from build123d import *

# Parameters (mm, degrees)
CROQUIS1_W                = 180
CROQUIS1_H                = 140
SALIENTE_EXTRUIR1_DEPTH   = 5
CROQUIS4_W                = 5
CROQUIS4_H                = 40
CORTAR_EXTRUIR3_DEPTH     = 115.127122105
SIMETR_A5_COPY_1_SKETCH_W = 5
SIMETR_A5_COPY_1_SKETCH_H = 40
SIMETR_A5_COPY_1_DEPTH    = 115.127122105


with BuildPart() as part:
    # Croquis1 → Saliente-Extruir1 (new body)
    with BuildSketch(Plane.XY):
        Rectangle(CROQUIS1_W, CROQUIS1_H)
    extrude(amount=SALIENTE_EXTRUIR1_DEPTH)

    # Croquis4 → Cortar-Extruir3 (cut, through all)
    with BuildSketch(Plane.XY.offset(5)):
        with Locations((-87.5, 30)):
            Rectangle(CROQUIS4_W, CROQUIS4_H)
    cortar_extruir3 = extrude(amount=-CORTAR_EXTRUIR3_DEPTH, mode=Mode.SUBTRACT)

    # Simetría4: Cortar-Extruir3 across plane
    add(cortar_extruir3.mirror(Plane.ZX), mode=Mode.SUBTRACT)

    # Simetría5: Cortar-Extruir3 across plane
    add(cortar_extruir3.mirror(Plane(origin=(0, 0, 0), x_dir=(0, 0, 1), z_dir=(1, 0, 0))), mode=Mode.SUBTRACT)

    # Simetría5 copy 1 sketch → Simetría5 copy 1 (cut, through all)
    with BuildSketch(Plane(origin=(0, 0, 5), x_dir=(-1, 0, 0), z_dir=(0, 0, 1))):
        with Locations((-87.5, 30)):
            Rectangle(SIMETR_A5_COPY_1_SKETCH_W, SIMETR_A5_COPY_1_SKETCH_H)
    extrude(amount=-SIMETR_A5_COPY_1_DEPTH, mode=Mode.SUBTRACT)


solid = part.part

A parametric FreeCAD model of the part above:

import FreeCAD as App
import Part
import Sketcher

V = App.Vector

doc = App.newDocument("Part")
body = doc.addObject("PartDesign::Body", "Body")

sketch1 = body.newObject("Sketcher::SketchObject", "Sketch")
sketch1.AttachmentSupport = (doc.getObject("XY_Plane"), [""])
sketch1.MapMode = "FlatFace"
sketch1.addGeometry(Part.LineSegment(V(-90, 70, 0), V(-90, -70, 0)), False)
sketch1.addGeometry(Part.LineSegment(V(-90, -70, 0), V(90, -70, 0)), False)
sketch1.addGeometry(Part.LineSegment(V(90, -70, 0), V(90, 70, 0)), False)
sketch1.addGeometry(Part.LineSegment(V(90, 70, 0), V(-90, 70, 0)), False)
sketch1.addConstraint(Sketcher.Constraint("Coincident", 0, 2, 1, 1))
sketch1.addConstraint(Sketcher.Constraint("Coincident", 1, 2, 2, 1))
sketch1.addConstraint(Sketcher.Constraint("Coincident", 2, 2, 3, 1))
sketch1.addConstraint(Sketcher.Constraint("Coincident", 3, 2, 0, 1))
sketch1.addConstraint(Sketcher.Constraint("Vertical", 0))
sketch1.addConstraint(Sketcher.Constraint("Horizontal", 1))
sketch1.addConstraint(Sketcher.Constraint("Vertical", 2))
sketch1.addConstraint(Sketcher.Constraint("Horizontal", 3))
sketch1.addConstraint(Sketcher.Constraint("Symmetric", 0, 2, 2, 2, -1, 1))
sketch1.addConstraint(Sketcher.Constraint("DistanceX", 1, 1, 1, 2, 180.0))
sketch1.addConstraint(Sketcher.Constraint("DistanceY", 0, 2, 0, 1, 140.0))
pad1 = body.newObject("PartDesign::Pad", "Pad")
pad1.Profile = sketch1
pad1.Length = 5

sketch2 = body.newObject("Sketcher::SketchObject", "Sketch001")
sketch2.AttachmentSupport = (doc.getObject("XY_Plane"), [""])
sketch2.MapMode = "FlatFace"
sketch2.AttachmentOffset = App.Placement(V(0, 0, 5), App.Rotation())
sketch2.addGeometry(Part.LineSegment(V(-90, 50, 0), V(-90, 10, 0)), False)
sketch2.addGeometry(Part.LineSegment(V(-90, 10, 0), V(-85, 10, 0)), False)
sketch2.addGeometry(Part.LineSegment(V(-85, 10, 0), V(-85, 50, 0)), False)
sketch2.addGeometry(Part.LineSegment(V(-85, 50, 0), V(-90, 50, 0)), False)
sketch2.addConstraint(Sketcher.Constraint("Coincident", 0, 2, 1, 1))
sketch2.addConstraint(Sketcher.Constraint("Coincident", 1, 2, 2, 1))
sketch2.addConstraint(Sketcher.Constraint("Coincident", 2, 2, 3, 1))
sketch2.addConstraint(Sketcher.Constraint("Coincident", 3, 2, 0, 1))
sketch2.addConstraint(Sketcher.Constraint("Vertical", 0))
sketch2.addConstraint(Sketcher.Constraint("Horizontal", 1))
sketch2.addConstraint(Sketcher.Constraint("Vertical", 2))
sketch2.addConstraint(Sketcher.Constraint("Horizontal", 3))
sketch2.addConstraint(Sketcher.Constraint("DistanceX", 1, 1, 1, 2, 5.0))
sketch2.addConstraint(Sketcher.Constraint("DistanceY", 0, 2, 0, 1, 40.0))
sketch2.addConstraint(Sketcher.Constraint("DistanceX", 0, 2, -1, 1, 90.0))
sketch2.addConstraint(Sketcher.Constraint("DistanceY", -1, 1, 0, 2, 10.0))
pocket1 = body.newObject("PartDesign::Pocket", "Pocket")
pocket1.Profile = sketch2
pocket1.Type = "ThroughAll"
doc.recompute()

mirrored = body.newObject("PartDesign::Mirrored", "Mirrored")
mirrored.Originals = [pocket1]
mirrored.MirrorPlane = (doc.getObject("XZ_Plane"), [""])
body.Tip = mirrored
doc.recompute()

mirrored2 = body.newObject("PartDesign::Mirrored", "Mirrored001")
mirrored2.Originals = [pocket1]
mirrored2.MirrorPlane = (doc.getObject("YZ_Plane"), [""])
body.Tip = mirrored2

sketch3 = body.newObject("Sketcher::SketchObject", "Sketch002")
sketch3.AttachmentSupport = (doc.getObject("XY_Plane"), [""])
sketch3.MapMode = "FlatFace"
sketch3.AttachmentOffset = App.Placement(V(0, 0, 5), App.Rotation())
sketch3.addGeometry(Part.LineSegment(V(90, -50, 0), V(90, -10, 0)), False)
sketch3.addGeometry(Part.LineSegment(V(90, -10, 0), V(85, -10, 0)), False)
sketch3.addGeometry(Part.LineSegment(V(85, -10, 0), V(85, -50, 0)), False)
sketch3.addGeometry(Part.LineSegment(V(85, -50, 0), V(90, -50, 0)), False)
sketch3.addConstraint(Sketcher.Constraint("Coincident", 0, 2, 1, 1))
sketch3.addConstraint(Sketcher.Constraint("Coincident", 1, 2, 2, 1))
sketch3.addConstraint(Sketcher.Constraint("Coincident", 2, 2, 3, 1))
sketch3.addConstraint(Sketcher.Constraint("Coincident", 3, 2, 0, 1))
sketch3.addConstraint(Sketcher.Constraint("Vertical", 0))
sketch3.addConstraint(Sketcher.Constraint("Horizontal", 1))
sketch3.addConstraint(Sketcher.Constraint("Vertical", 2))
sketch3.addConstraint(Sketcher.Constraint("Horizontal", 3))
sketch3.addConstraint(Sketcher.Constraint("DistanceX", 1, 2, 1, 1, 5.0))
sketch3.addConstraint(Sketcher.Constraint("DistanceY", 0, 1, 0, 2, 40.0))
sketch3.addConstraint(Sketcher.Constraint("DistanceX", -1, 1, 0, 2, 90.0))
sketch3.addConstraint(Sketcher.Constraint("DistanceY", 0, 2, -1, 1, 10.0))
pocket2 = body.newObject("PartDesign::Pocket", "Pocket001")
pocket2.Profile = sketch3
pocket2.Type = "ThroughAll"

doc.recompute()
